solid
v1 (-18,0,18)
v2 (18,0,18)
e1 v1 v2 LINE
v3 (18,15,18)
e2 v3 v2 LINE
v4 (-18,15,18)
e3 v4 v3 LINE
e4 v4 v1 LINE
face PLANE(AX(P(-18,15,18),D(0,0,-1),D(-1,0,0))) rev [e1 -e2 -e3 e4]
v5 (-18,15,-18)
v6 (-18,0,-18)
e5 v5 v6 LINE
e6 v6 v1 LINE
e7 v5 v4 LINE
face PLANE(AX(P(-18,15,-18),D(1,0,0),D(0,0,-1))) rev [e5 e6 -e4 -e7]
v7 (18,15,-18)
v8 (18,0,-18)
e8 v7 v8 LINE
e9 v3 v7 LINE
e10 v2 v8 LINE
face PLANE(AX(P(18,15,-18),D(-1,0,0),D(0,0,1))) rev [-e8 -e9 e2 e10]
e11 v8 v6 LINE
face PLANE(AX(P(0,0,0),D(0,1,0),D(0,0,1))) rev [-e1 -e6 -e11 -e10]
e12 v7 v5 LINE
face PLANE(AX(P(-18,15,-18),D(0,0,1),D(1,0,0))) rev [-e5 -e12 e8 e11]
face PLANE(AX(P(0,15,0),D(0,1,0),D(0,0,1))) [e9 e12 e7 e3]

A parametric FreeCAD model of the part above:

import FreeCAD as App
import Part
import Sketcher

doc = App.newDocument("Part")
body = doc.addObject("PartDesign::Body", "Body")

# Sketch on XZ plane
sketch1 = doc.addObject("Sketcher::SketchObject", "Sketch")
body.addObject(sketch1)
sketch1.AttachmentSupport = (doc.XZ_Plane, [""])
sketch1.MapMode = "FlatFace"
sketch1.addGeometry([
    Part.LineSegment(App.Vector(-18, -18, 0), App.Vector(-18, 18, 0)),
    Part.LineSegment(App.Vector(-18, 18, 0), App.Vector(18, 18, 0)),
    Part.LineSegment(App.Vector(18, 18, 0), App.Vector(18, -18, 0)),
    Part.LineSegment(App.Vector(18, -18, 0), App.Vector(-18, -18, 0)),
], False)
sketch1.addConstraint([
    Sketcher.Constraint("Coincident", 0, 2, 1, 1),
    Sketcher.Constraint("Coincident", 1, 2, 2, 1),
    Sketcher.Constraint("Coincident", 2, 2, 3, 1),
    Sketcher.Constraint("Coincident", 3, 2, 0, 1),
    Sketcher.Constraint("Vertical", 0),
    Sketcher.Constraint("Horizontal", 1),
    Sketcher.Constraint("Vertical", 2),
    Sketcher.Constraint("Horizontal", 3),
    Sketcher.Constraint("Symmetric", 0, 2, 2, 2, -1, 1),
    Sketcher.Constraint("Equal", 3, 0),
    Sketcher.Constraint("DistanceX", 1, 1, 1, 2, 36.0),
])
pad1 = doc.addObject("PartDesign::Pad", "Pad")
body.addObject(pad1)
pad1.Profile = sketch1
pad1.Length = 15
pad1.Reversed = True

doc.recompute()
